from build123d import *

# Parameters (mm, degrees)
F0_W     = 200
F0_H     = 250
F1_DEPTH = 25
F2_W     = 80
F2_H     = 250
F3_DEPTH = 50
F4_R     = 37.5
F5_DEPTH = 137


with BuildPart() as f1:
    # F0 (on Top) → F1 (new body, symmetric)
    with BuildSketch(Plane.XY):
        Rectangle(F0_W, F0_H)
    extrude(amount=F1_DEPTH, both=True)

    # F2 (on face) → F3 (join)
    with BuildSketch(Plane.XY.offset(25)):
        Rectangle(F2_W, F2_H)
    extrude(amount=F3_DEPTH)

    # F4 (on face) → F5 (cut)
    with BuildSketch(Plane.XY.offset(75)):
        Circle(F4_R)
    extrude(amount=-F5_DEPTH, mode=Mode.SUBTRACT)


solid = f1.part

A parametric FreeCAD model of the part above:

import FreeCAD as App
import Part
import Sketcher
Q = App.Units.Quantity

doc = App.newDocument("Part")
params = doc.addObject("Spreadsheet::Sheet", "Params")
for row, (alias, value) in enumerate([
    ("sketch1_width", "200 mm"),
    ("sketch1_height", "250 mm"),
    ("pad1_length", "50 mm"),
    ("sketch2_width", "80 mm"),
    ("sketch2_height", "250 mm"),
    ("pad2_length", "50 mm"),
    ("sketch3_diameter", "75 mm"),
    ("pocket1_length", "137 mm"),
], start=1):
    params.set(f"A{row}", alias)
    params.set(f"B{row}", "=" + value)
    params.setAlias(f"B{row}", alias)

body = doc.addObject("PartDesign::Body", "Body")

sketch1 = doc.addObject("Sketcher::SketchObject", "Sketch")
body.addObject(sketch1)
sketch1.AttachmentSupport = (doc.XY_Plane, [""])
sketch1.MapMode = "FlatFace"
sketch1.addGeometry(Part.LineSegment(App.Vector(-100, 125, 0), App.Vector(-100, -125, 0)), False)
sketch1.addGeometry(Part.LineSegment(App.Vector(-100, -125, 0), App.Vector(100, -125, 0)), False)
sketch1.addGeometry(Part.LineSegment(App.Vector(100, -125, 0), App.Vector(100, 125, 0)), False)
sketch1.addGeometry(Part.LineSegment(App.Vector(100, 125, 0), App.Vector(-100, 125, 0)), False)
sketch1.addConstraint(Sketcher.Constraint("Coincident", 0, 2, 1, 1))
sketch1.addConstraint(Sketcher.Constraint("Coincident", 1, 2, 2, 1))
sketch1.addConstraint(Sketcher.Constraint("Coincident", 2, 2, 3, 1))
sketch1.addConstraint(Sketcher.Constraint("Coincident", 3, 2, 0, 1))
sketch1.addConstraint(Sketcher.Constraint("Vertical", 0))
sketch1.addConstraint(Sketcher.Constraint("Horizontal", 1))
sketch1.addConstraint(Sketcher.Constraint("Vertical", 2))
sketch1.addConstraint(Sketcher.Constraint("Horizontal", 3))
sketch1.addConstraint(Sketcher.Constraint("Symmetric", 0, 2, 2, 2, -1, 1))
sketch1.addConstraint(Sketcher.Constraint("DistanceX", 1, 1, 1, 2, Q("200 mm")))
sketch1.addConstraint(Sketcher.Constraint("DistanceY", 0, 2, 0, 1, Q("250 mm")))
sketch1.setExpression("Constraints[9]", "Params.sketch1_width")
sketch1.setExpression("Constraints[10]", "Params.sketch1_height")
pad1 = doc.addObject("PartDesign::Pad", "Pad")
body.addObject(pad1)
pad1.Profile = sketch1
pad1.setExpression("Length", "Params.pad1_length")
pad1.Midplane = True

sketch2 = doc.addObject("Sketcher::SketchObject", "Sketch001")
body.addObject(sketch2)
sketch2.AttachmentSupport = (doc.XY_Plane, [""])
sketch2.MapMode = "FlatFace"
sketch2.AttachmentOffset = App.Placement(App.Vector(0, 0, 25), App.Rotation())
sketch2.addGeometry(Part.LineSegment(App.Vector(-40, 125, 0), App.Vector(-40, -125, 0)), False)
sketch2.addGeometry(Part.LineSegment(App.Vector(-40, -125, 0), App.Vector(40, -125, 0)), False)
sketch2.addGeometry(Part.LineSegment(App.Vector(40, -125, 0), App.Vector(40, 125, 0)), False)
sketch2.addGeometry(Part.LineSegment(App.Vector(40, 125, 0), App.Vector(-40, 125, 0)), False)
sketch2.addConstraint(Sketcher.Constraint("Coincident", 0, 2, 1, 1))
sketch2.addConstraint(Sketcher.Constraint("Coincident", 1, 2, 2, 1))
sketch2.addConstraint(Sketcher.Constraint("Coincident", 2, 2, 3, 1))
sketch2.addConstraint(Sketcher.Constraint("Coincident", 3, 2, 0, 1))
sketch2.addConstraint(Sketcher.Constraint("Vertical", 0))
sketch2.addConstraint(Sketcher.Constraint("Horizontal", 1))
sketch2.addConstraint(Sketcher.Constraint("Vertical", 2))
sketch2.addConstraint(Sketcher.Constraint("Horizontal", 3))
sketch2.addConstraint(Sketcher.Constraint("Symmetric", 0, 2, 2, 2, -1, 1))
sketch2.addConstraint(Sketcher.Constraint("DistanceX", 1, 1, 1, 2, Q("80 mm")))
sketch2.addConstraint(Sketcher.Constraint("DistanceY", 0, 2, 0, 1, Q("250 mm")))
sketch2.setExpression("Constraints[9]", "Params.sketch2_width")
sketch2.setExpression("Constraints[10]", "Params.sketch2_height")
pad2 = doc.addObject("PartDesign::Pad", "Pad001")
body.addObject(pad2)
pad2.Profile = sketch2
pad2.setExpression("Length", "Params.pad2_length")

sketch3 = doc.addObject("Sketcher::SketchObject", "Sketch002")
body.addObject(sketch3)
sketch3.AttachmentSupport = (doc.XY_Plane, [""])
sketch3.MapMode = "FlatFace"
sketch3.AttachmentOffset = App.Placement(App.Vector(0, 0, 75), App.Rotation())
sketch3.addGeometry(Part.Circle(App.Vector(0, 0, 0), App.Vector(0, 0, 1), 38), False)
sketch3.addConstraint(Sketcher.Constraint("Coincident", 0, 3, -1, 1))
sketch3.addConstraint(Sketcher.Constraint("Diameter", 0, Q("75 mm")))
sketch3.setExpression("Constraints[1]", "Params.sketch3_diameter")
pocket1 = doc.addObject("PartDesign::Pocket", "Pocket")
body.addObject(pocket1)
pocket1.Profile = sketch3
pocket1.setExpression("Length", "Params.pocket1_length")

doc.recompute()
